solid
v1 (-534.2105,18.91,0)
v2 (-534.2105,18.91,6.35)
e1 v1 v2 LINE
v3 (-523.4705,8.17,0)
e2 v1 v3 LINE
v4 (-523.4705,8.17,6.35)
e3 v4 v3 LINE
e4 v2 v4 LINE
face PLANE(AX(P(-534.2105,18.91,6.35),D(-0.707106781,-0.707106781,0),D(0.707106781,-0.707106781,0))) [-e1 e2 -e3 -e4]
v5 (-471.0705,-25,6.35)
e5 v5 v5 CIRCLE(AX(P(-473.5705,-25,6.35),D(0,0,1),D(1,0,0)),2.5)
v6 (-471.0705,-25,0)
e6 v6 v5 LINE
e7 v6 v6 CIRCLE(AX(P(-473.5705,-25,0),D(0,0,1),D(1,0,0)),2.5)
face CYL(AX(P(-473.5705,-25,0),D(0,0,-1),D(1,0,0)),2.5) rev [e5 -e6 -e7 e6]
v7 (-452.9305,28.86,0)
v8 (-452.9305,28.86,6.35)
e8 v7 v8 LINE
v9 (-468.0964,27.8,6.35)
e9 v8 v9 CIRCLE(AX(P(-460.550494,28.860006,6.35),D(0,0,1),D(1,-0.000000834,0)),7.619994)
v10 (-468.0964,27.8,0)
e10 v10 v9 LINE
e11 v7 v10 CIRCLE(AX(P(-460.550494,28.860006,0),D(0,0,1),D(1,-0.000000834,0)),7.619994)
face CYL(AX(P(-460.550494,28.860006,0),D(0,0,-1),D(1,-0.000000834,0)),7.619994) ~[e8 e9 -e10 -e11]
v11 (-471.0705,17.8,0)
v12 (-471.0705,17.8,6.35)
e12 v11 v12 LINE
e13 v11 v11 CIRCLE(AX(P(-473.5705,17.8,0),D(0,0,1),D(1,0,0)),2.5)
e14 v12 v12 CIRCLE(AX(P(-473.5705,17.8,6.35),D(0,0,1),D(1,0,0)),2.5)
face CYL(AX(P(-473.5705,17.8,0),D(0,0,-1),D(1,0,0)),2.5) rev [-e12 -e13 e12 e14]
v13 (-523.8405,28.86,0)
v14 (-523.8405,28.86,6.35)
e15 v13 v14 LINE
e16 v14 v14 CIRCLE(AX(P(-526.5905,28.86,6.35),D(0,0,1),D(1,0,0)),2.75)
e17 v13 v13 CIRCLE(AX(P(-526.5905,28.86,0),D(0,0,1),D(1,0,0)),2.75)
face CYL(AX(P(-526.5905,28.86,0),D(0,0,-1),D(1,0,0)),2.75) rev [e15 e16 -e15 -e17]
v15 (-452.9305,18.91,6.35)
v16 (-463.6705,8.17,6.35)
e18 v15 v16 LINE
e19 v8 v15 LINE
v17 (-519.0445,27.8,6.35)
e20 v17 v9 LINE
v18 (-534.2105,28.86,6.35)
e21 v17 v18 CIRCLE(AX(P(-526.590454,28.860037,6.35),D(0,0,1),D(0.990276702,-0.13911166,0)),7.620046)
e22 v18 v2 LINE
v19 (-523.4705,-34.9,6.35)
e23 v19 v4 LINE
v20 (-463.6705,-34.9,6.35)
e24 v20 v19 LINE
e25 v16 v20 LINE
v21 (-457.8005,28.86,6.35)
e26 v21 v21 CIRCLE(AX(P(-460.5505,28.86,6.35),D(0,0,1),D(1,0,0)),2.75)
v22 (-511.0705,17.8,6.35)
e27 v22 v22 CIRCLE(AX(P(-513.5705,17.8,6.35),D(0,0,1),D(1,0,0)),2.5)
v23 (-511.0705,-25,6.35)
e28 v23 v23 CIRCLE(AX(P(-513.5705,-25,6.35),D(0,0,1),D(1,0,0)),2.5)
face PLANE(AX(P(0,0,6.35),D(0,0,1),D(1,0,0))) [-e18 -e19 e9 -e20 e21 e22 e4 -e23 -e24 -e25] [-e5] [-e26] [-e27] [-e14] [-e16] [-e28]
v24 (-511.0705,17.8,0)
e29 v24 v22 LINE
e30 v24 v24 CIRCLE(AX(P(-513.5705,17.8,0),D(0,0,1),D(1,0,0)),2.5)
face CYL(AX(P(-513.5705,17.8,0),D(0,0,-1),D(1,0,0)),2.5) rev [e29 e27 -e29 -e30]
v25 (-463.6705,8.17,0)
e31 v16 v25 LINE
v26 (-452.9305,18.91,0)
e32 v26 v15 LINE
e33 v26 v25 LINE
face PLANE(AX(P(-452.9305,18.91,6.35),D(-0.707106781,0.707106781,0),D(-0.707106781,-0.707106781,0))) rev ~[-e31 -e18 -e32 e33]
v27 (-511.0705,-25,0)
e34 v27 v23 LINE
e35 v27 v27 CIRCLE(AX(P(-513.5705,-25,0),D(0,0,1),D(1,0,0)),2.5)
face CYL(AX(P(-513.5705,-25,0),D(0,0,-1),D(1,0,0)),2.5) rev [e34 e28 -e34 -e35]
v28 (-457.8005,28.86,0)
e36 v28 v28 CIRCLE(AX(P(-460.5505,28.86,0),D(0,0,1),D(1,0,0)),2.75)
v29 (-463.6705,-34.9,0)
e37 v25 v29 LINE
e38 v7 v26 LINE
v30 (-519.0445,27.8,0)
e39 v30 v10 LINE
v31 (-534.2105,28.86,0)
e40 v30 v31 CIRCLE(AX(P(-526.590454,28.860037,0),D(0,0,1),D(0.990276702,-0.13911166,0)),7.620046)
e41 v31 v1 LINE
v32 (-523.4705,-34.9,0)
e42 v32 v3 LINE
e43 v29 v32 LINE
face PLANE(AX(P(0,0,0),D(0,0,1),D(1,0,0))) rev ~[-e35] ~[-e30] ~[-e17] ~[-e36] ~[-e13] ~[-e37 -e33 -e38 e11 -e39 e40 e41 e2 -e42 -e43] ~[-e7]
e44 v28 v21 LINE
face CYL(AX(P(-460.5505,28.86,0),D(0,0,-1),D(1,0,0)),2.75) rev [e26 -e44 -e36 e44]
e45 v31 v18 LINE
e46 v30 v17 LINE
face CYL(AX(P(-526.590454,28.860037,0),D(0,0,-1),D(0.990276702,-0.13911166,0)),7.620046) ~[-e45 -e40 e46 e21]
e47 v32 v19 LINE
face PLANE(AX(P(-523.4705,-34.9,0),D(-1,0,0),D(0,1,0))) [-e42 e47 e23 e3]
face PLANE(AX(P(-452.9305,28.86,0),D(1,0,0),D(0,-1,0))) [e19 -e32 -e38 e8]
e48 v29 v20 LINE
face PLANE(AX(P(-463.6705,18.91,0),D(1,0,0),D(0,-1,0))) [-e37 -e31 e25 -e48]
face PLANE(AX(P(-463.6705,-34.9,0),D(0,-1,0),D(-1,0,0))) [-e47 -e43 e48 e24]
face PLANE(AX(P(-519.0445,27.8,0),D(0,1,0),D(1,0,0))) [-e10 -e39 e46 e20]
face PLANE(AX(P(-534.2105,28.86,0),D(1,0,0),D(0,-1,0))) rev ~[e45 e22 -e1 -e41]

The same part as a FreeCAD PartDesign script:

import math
import FreeCAD as App
import Part
import Sketcher
from FreeCAD import Vector

doc = App.newDocument("Part")
body = doc.addObject("PartDesign::Body", "Body")

sketch1 = body.newObject("Sketcher::SketchObject", "Sketch")
sketch1.AttachmentSupport = (doc.getObject("XY_Plane"), [""])
sketch1.MapMode = "FlatFace"
sketch1.addGeometry([
    Part.LineSegment(Vector(-463.6705, -34.9, 0), Vector(-463.6705, 18.91, 0)),
    Part.LineSegment(Vector(-463.6705, 18.91, 0), Vector(-452.9305, 18.91, 0)),
    Part.LineSegment(Vector(-452.9305, 18.91, 0), Vector(-452.9305, 28.86, 0)),
    Part.ArcOfCircle(Part.Circle(Vector(-460.5505, 28.86, 0), Vector(0, 0, 1), 7.62), math.radians(0), math.radians(187.996224)),
    Part.LineSegment(Vector(-468.0964, 27.8, 0), Vector(-519.0445, 27.8, 0)),
    Part.ArcOfCircle(Part.Circle(Vector(-526.5905, 28.86, 0), Vector(0, 0, 1), 7.620086), math.radians(-7.99612), math.radians(180)),
    Part.LineSegment(Vector(-534.2105, 28.86, 0), Vector(-534.2105, 18.91, 0)),
    Part.LineSegment(Vector(-534.2105, 18.91, 0), Vector(-523.4705, 18.91, 0)),
    Part.LineSegment(Vector(-523.4705, 18.91, 0), Vector(-523.4705, -34.9, 0)),
    Part.LineSegment(Vector(-523.4705, -34.9, 0), Vector(-463.6705, -34.9, 0)),
    Part.Circle(Vector(-513.5705, -25, 0), Vector(0, 0, 1), 2.5),
    Part.Circle(Vector(-473.5705, -25, 0), Vector(0, 0, 1), 2.5),
    Part.Circle(Vector(-513.5705, 17.8, 0), Vector(0, 0, 1), 2.5),
    Part.Circle(Vector(-526.5905, 28.86, 0), Vector(0, 0, 1), 2.75),
    Part.Circle(Vector(-473.5705, 17.8, 0), Vector(0, 0, 1), 2.5),
    Part.Circle(Vector(-460.5505, 28.86, 0), Vector(0, 0, 1), 2.75),
], False)
sketch1.addConstraint([
    Sketcher.Constraint("Coincident", 0, 2, 1, 1),
    Sketcher.Constraint("Coincident", 1, 2, 2, 1),
    Sketcher.Constraint("Tangent", 2, 2, 3, 1),
    Sketcher.Constraint("Coincident", 3, 2, 4, 1),
    Sketcher.Constraint("Coincident", 4, 2, 5, 1),
    Sketcher.Constraint("Tangent", 5, 2, 6, 1),
    Sketcher.Constraint("Coincident", 6, 2, 7, 1),
    Sketcher.Constraint("Coincident", 7, 2, 8, 1),
    Sketcher.Constraint("Coincident", 8, 2, 9, 1),
    Sketcher.Constraint("Coincident", 9, 2, 0, 1),
    Sketcher.Constraint("Vertical", 0),
    Sketcher.Constraint("Horizontal", 1),
    Sketcher.Constraint("Vertical", 2),
    Sketcher.Constraint("Horizontal", 4),
    Sketcher.Constraint("Vertical", 6),
    Sketcher.Constraint("Horizontal", 7),
    Sketcher.Constraint("Vertical", 8),
    Sketcher.Constraint("Horizontal", 9),
    Sketcher.Constraint("Coincident", 13, 3, 5, 3),
    Sketcher.Constraint("Coincident", 15, 3, 3, 3),
    Sketcher.Constraint("Equal", 3, 5),
    Sketcher.Constraint("Equal", 10, 11),
    Sketcher.Constraint("Equal", 11, 12),
    Sketcher.Constraint("Equal", 12, 14),
    Sketcher.Constraint("Equal", 13, 15),
    Sketcher.Constraint("Horizontal", 3, 3, 5, 3),
    Sketcher.Constraint("Horizontal", 10, 3, 11, 3),
    Sketcher.Constraint("Horizontal", 12, 3, 14, 3),
    Sketcher.Constraint("Horizontal", 1, 2, 6, 2),
    Sketcher.Constraint("Vertical", 10, 3, 12, 3),
    Sketcher.Constraint("Vertical", 11, 3, 14, 3),
    Sketcher.Constraint("Equal", 1, 7),
    Sketcher.Constraint("Diameter", 13, 5.5),
    Sketcher.Constraint("Radius", 3, 7.62),
    Sketcher.Constraint("Diameter", 10, 5.0),
    Sketcher.Constraint("DistanceY", 14, 3, 3, 2, 10.0),
    Sketcher.Constraint("DistanceY", 0, 2, 3, 2, 8.89),
    Sketcher.Constraint("DistanceX", 9, 1, 9, 2, 59.8),
    Sketcher.Constraint("DistanceY", 10, 3, -1, 1, 25.0),
    Sketcher.Constraint("DistanceX", 10, 3, 11, 3, 40.0),
    Sketcher.Constraint("DistanceX", 1, 1, 1, 2, 10.74),
    Sketcher.Constraint("DistanceY", 0, 1, 0, 2, 53.81),
    Sketcher.Constraint("DistanceY", 2, 1, 2, 2, 9.95),
    Sketcher.Constraint("DistanceY", -1, 1, 12, 3, 17.8),
    Sketcher.Constraint("DistanceX", 14, 3, 0, 2, 9.9),
    Sketcher.Constraint("DistanceX", 3, 3, -1, 1, 460.5505),
])
pad1 = body.newObject("PartDesign::Pad", "Pad")
pad1.Profile = sketch1
pad1.Length = 6.35

sketch2 = body.newObject("Sketcher::SketchObject", "Sketch001")
sketch2.AttachmentSupport = (doc.getObject("XY_Plane"), [""])
sketch2.MapMode = "FlatFace"
sketch2.AttachmentOffset = App.Placement(Vector(0, 0, 6.35), App.Rotation())
sketch2.addGeometry([
    Part.LineSegment(Vector(-452.9305, 18.91, 0), Vector(-463.6705, 18.91, 0)),
    Part.LineSegment(Vector(-463.6705, 18.91, 0), Vector(-463.6705, 8.17, 0)),
    Part.LineSegment(Vector(-463.6705, 8.17, 0), Vector(-452.9305, 18.91, 0)),
    Part.LineSegment(Vector(-523.4705, 18.91, 0), Vector(-534.2105, 18.91, 0)),
    Part.LineSegment(Vector(-534.2105, 18.91, 0), Vector(-523.4705, 8.17, 0)),
    Part.LineSegment(Vector(-523.4705, 8.17, 0), Vector(-523.4705, 18.91, 0)),
], False)
sketch2.addConstraint([
    Sketcher.Constraint("Coincident", 0, 2, 1, 1),
    Sketcher.Constraint("Coincident", 1, 2, 2, 1),
    Sketcher.Constraint("Coincident", 2, 2, 0, 1),
    Sketcher.Constraint("Coincident", 3, 2, 4, 1),
    Sketcher.Constraint("Coincident", 4, 2, 5, 1),
    Sketcher.Constraint("Coincident", 5, 2, 3, 1),
    Sketcher.Constraint("Horizontal", 0),
    Sketcher.Constraint("Vertical", 1),
    Sketcher.Constraint("Horizontal", 3),
    Sketcher.Constraint("Vertical", 5),
    Sketcher.Constraint("Perpendicular", 2, 4),
    Sketcher.Constraint("Horizontal", 2, 2, 3, 2),
    Sketcher.Constraint("Horizontal", 1, 2, 4, 2),
    Sketcher.Constraint("Equal", 0, 3),
    Sketcher.Constraint("DistanceX", 0, 2, 0, 1, 10.74),
    Sketcher.Constraint("DistanceX", 4, 2, 1, 2, 59.8),
    Sketcher.Constraint("DistanceY", -1, 1, 0, 2, 18.91),
    Sketcher.Constraint("DistanceX", 0, 2, -1, 1, 463.6705),
])
pad2 = body.newObject("PartDesign::Pad", "Pad001")
pad2.Profile = sketch2
pad2.Length = 6.35
pad2.Reversed = True

doc.recompute()
